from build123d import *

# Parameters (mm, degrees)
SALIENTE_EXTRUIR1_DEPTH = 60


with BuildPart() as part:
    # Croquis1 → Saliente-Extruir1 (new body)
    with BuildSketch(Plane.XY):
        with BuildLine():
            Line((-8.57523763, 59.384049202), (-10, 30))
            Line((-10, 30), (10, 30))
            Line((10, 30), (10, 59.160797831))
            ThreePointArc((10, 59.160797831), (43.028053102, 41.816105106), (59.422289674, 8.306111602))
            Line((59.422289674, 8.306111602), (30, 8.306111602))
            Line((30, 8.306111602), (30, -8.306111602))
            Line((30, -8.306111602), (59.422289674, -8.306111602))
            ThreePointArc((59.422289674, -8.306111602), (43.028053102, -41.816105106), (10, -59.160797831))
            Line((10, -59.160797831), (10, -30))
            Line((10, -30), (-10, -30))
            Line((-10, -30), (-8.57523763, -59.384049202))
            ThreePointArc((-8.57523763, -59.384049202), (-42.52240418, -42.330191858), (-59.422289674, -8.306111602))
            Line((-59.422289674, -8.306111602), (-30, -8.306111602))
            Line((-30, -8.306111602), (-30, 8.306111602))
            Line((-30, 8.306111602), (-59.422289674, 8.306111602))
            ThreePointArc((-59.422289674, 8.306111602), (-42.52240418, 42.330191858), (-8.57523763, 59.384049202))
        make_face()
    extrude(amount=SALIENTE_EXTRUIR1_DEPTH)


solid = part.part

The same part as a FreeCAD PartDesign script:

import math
import FreeCAD as App
import Part
import Sketcher
from FreeCAD import Vector
Q = App.Units.Quantity

doc = App.newDocument("Part")
body = doc.addObject("PartDesign::Body", "Body")

# Sketch on XY plane
sketch1 = body.newObject("Sketcher::SketchObject", "Sketch")
sketch1.AttachmentSupport = (doc.getObject("XY_Plane"), [""])
sketch1.MapMode = "FlatFace"
sketch1.addGeometry([
    Part.LineSegment(Vector(-10, 30, 0), Vector(-9, 59, 0)),  # 0
    Part.ArcOfCircle(Part.Circle(Vector(0, 0, 0), Vector(0, 0, 1), 60), math.radians(98), math.radians(172)),  # 1
    Part.LineSegment(Vector(-59, 8, 0), Vector(-30, 8, 0)),  # 2
    Part.LineSegment(Vector(-30, 8, 0), Vector(-30, -8, 0)),  # 3
    Part.LineSegment(Vector(-30, -8, 0), Vector(-59, -8, 0)),  # 4
    Part.ArcOfCircle(Part.Circle(Vector(0, 0, 0), Vector(0, 0, 1), 60), math.radians(-172), math.radians(-98)),  # 5
    Part.LineSegment(Vector(-9, -59, 0), Vector(-10, -30, 0)),  # 6
    Part.LineSegment(Vector(-10, -30, 0), Vector(10, -30, 0)),  # 7
    Part.LineSegment(Vector(10, -30, 0), Vector(10, -59, 0)),  # 8
    Part.ArcOfCircle(Part.Circle(Vector(0, 0, 0), Vector(0, 0, 1), 60), math.radians(-80), math.radians(-8)),  # 9
    Part.LineSegment(Vector(59, -8, 0), Vector(30, -8, 0)),  # 10
    Part.LineSegment(Vector(30, -8, 0), Vector(30, 8, 0)),  # 11
    Part.LineSegment(Vector(30, 8, 0), Vector(59, 8, 0)),  # 12
    Part.ArcOfCircle(Part.Circle(Vector(0, 0, 0), Vector(0, 0, 1), 60), math.radians(8), math.radians(80)),  # 13
    Part.LineSegment(Vector(10, 59, 0), Vector(10, 30, 0)),  # 14
    Part.LineSegment(Vector(10, 30, 0), Vector(-10, 30, 0)),  # 15
], False)
sketch1.addConstraint([
    Sketcher.Constraint("Coincident", 0, 2, 1, 1),
    Sketcher.Constraint("Coincident", 1, 2, 2, 1),
    Sketcher.Constraint("Coincident", 2, 2, 3, 1),
    Sketcher.Constraint("Coincident", 3, 2, 4, 1),
    Sketcher.Constraint("Coincident", 4, 2, 5, 1),
    Sketcher.Constraint("Coincident", 5, 2, 6, 1),
    Sketcher.Constraint("Coincident", 6, 2, 7, 1),
    Sketcher.Constraint("Coincident", 7, 2, 8, 1),
    Sketcher.Constraint("Coincident", 8, 2, 9, 1),
    Sketcher.Constraint("Coincident", 9, 2, 10, 1),
    Sketcher.Constraint("Coincident", 10, 2, 11, 1),
    Sketcher.Constraint("Coincident", 11, 2, 12, 1),
    Sketcher.Constraint("Coincident", 12, 2, 13, 1),
    Sketcher.Constraint("Coincident", 13, 2, 14, 1),
    Sketcher.Constraint("Coincident", 14, 2, 15, 1),
    Sketcher.Constraint("Coincident", 15, 2, 0, 1),
    Sketcher.Constraint("Horizontal", 2),
    Sketcher.Constraint("Vertical", 3),
    Sketcher.Constraint("Horizontal", 4),
    Sketcher.Constraint("Horizontal", 7),
    Sketcher.Constraint("Vertical", 8),
    Sketcher.Constraint("Horizontal", 10),
    Sketcher.Constraint("Vertical", 11),
    Sketcher.Constraint("Horizontal", 12),
    Sketcher.Constraint("Vertical", 14),
    Sketcher.Constraint("Horizontal", 15),
    Sketcher.Constraint("Coincident", 1, 3, -1, 1),
    Sketcher.Constraint("Coincident", 5, 3, -1, 1),
    Sketcher.Constraint("Coincident", 9, 3, -1, 1),
    Sketcher.Constraint("Coincident", 13, 3, -1, 1),
    Sketcher.Constraint("Equal", 1, 5),
    Sketcher.Constraint("Equal", 5, 9),
    Sketcher.Constraint("Equal", 9, 13),
    Sketcher.Constraint("Symmetric", 2, 2, 10, 2, -1, 1),
    Sketcher.Constraint("Symmetric", 6, 2, 14, 2, -1, 1),
    Sketcher.Constraint("Horizontal", 4, 2, 9, 2),
    Sketcher.Constraint("Horizontal", 2, 2, 11, 2),
    Sketcher.Constraint("Vertical", 0, 2, 5, 2),
    Sketcher.Constraint("Vertical", 8, 2, 13, 2),
    Sketcher.Constraint("Vertical", 6, 2, 15, 2),
    Sketcher.Constraint("Radius", 1, Q("60 mm")),
    Sketcher.Constraint("DistanceX", 7, 1, 7, 2, Q("20 mm")),
    Sketcher.Constraint("DistanceX", 2, 2, -1, 1, Q("30 mm")),
    Sketcher.Constraint("DistanceY", 6, 2, -1, 1, Q("30 mm")),
    Sketcher.Constraint("DistanceX", 2, 1, 2, 2, Q("29.42229 mm")),
    Sketcher.Constraint("Distance", 0, Q("29.418571 mm")),
])
pad1 = body.newObject("PartDesign::Pad", "Pad")
pad1.Profile = sketch1
pad1.Length = 60

doc.recompute()
